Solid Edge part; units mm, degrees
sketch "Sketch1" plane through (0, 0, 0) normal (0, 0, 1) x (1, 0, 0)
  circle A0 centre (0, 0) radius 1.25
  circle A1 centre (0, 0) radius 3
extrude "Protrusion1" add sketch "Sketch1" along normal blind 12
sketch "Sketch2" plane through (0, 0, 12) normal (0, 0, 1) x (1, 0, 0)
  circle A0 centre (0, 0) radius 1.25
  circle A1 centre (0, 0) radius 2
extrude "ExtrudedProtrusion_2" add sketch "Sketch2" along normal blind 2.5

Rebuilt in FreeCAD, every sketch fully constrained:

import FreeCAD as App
import Part
import Sketcher

V = App.Vector

doc = App.newDocument("Part")
body = doc.addObject("PartDesign::Body", "Body")

sketch1 = body.newObject("Sketcher::SketchObject", "Sketch")
sketch1.AttachmentSupport = (doc.getObject("XY_Plane"), [""])
sketch1.MapMode = "FlatFace"
sketch1.addGeometry([
    Part.Circle(V(0, 0, 0), V(0, 0, 1), 3),
    Part.Circle(V(0, 0, 0), V(0, 0, 1), 1.25),
], False)
sketch1.addConstraint([
    Sketcher.Constraint("Coincident", 0, 3, -1, 1),
    Sketcher.Constraint("Coincident", 1, 3, -1, 1),
    Sketcher.Constraint("Diameter", 0, 6.0),
    Sketcher.Constraint("Diameter", 1, 2.5),
])
pad1 = body.newObject("PartDesign::Pad", "Pad")
pad1.Profile = sketch1
pad1.Length = 12

sketch2 = body.newObject("Sketcher::SketchObject", "Sketch001")
sketch2.AttachmentSupport = (doc.getObject("XY_Plane"), [""])
sketch2.MapMode = "FlatFace"
sketch2.AttachmentOffset = App.Placement(V(0, 0, 12), App.Rotation())
sketch2.addGeometry([
    Part.Circle(V(0, 0, 0), V(0, 0, 1), 2),
    Part.Circle(V(0, 0, 0), V(0, 0, 1), 1.25),
], False)
sketch2.addConstraint([
    Sketcher.Constraint("Coincident", 0, 3, -1, 1),
    Sketcher.Constraint("Coincident", 1, 3, -1, 1),
    Sketcher.Constraint("Diameter", 0, 4.0),
    Sketcher.Constraint("Diameter", 1, 2.5),
])
pad2 = body.newObject("PartDesign::Pad", "Pad001")
pad2.Profile = sketch2
pad2.Length = 2.5

doc.recompute()
